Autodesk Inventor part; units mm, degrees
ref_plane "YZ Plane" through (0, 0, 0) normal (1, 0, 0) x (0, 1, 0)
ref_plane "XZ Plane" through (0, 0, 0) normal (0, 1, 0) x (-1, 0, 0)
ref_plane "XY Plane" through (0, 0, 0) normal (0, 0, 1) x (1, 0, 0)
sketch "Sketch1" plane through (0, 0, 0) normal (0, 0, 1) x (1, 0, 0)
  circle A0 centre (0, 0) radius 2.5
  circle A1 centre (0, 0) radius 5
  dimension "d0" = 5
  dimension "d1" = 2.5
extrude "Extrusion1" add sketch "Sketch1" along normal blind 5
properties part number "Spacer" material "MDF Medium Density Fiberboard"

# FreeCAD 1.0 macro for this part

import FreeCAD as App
import Part
import Sketcher

doc = App.newDocument("Part")
body = doc.addObject("PartDesign::Body", "Body")

# Sketch on XY plane
sketch1 = body.newObject("Sketcher::SketchObject", "Sketch")
sketch1.AttachmentSupport = (doc.getObject("XY_Plane"), [""])
sketch1.MapMode = "FlatFace"
sketch1.addGeometry([
    Part.Circle(App.Vector(0, 0, 0), App.Vector(0, 0, 1), 5),
    Part.Circle(App.Vector(0, 0, 0), App.Vector(0, 0, 1), 2.5),
], False)
sketch1.addConstraint([
    Sketcher.Constraint("Coincident", 0, 3, -1, 1),
    Sketcher.Constraint("Coincident", 1, 3, -1, 1),
    Sketcher.Constraint("Diameter", 0, 10.0),
    Sketcher.Constraint("Diameter", 1, 5.0),
])
pad1 = body.newObject("PartDesign::Pad", "Pad")
pad1.Profile = sketch1
pad1.Length = 5

doc.recompute()
